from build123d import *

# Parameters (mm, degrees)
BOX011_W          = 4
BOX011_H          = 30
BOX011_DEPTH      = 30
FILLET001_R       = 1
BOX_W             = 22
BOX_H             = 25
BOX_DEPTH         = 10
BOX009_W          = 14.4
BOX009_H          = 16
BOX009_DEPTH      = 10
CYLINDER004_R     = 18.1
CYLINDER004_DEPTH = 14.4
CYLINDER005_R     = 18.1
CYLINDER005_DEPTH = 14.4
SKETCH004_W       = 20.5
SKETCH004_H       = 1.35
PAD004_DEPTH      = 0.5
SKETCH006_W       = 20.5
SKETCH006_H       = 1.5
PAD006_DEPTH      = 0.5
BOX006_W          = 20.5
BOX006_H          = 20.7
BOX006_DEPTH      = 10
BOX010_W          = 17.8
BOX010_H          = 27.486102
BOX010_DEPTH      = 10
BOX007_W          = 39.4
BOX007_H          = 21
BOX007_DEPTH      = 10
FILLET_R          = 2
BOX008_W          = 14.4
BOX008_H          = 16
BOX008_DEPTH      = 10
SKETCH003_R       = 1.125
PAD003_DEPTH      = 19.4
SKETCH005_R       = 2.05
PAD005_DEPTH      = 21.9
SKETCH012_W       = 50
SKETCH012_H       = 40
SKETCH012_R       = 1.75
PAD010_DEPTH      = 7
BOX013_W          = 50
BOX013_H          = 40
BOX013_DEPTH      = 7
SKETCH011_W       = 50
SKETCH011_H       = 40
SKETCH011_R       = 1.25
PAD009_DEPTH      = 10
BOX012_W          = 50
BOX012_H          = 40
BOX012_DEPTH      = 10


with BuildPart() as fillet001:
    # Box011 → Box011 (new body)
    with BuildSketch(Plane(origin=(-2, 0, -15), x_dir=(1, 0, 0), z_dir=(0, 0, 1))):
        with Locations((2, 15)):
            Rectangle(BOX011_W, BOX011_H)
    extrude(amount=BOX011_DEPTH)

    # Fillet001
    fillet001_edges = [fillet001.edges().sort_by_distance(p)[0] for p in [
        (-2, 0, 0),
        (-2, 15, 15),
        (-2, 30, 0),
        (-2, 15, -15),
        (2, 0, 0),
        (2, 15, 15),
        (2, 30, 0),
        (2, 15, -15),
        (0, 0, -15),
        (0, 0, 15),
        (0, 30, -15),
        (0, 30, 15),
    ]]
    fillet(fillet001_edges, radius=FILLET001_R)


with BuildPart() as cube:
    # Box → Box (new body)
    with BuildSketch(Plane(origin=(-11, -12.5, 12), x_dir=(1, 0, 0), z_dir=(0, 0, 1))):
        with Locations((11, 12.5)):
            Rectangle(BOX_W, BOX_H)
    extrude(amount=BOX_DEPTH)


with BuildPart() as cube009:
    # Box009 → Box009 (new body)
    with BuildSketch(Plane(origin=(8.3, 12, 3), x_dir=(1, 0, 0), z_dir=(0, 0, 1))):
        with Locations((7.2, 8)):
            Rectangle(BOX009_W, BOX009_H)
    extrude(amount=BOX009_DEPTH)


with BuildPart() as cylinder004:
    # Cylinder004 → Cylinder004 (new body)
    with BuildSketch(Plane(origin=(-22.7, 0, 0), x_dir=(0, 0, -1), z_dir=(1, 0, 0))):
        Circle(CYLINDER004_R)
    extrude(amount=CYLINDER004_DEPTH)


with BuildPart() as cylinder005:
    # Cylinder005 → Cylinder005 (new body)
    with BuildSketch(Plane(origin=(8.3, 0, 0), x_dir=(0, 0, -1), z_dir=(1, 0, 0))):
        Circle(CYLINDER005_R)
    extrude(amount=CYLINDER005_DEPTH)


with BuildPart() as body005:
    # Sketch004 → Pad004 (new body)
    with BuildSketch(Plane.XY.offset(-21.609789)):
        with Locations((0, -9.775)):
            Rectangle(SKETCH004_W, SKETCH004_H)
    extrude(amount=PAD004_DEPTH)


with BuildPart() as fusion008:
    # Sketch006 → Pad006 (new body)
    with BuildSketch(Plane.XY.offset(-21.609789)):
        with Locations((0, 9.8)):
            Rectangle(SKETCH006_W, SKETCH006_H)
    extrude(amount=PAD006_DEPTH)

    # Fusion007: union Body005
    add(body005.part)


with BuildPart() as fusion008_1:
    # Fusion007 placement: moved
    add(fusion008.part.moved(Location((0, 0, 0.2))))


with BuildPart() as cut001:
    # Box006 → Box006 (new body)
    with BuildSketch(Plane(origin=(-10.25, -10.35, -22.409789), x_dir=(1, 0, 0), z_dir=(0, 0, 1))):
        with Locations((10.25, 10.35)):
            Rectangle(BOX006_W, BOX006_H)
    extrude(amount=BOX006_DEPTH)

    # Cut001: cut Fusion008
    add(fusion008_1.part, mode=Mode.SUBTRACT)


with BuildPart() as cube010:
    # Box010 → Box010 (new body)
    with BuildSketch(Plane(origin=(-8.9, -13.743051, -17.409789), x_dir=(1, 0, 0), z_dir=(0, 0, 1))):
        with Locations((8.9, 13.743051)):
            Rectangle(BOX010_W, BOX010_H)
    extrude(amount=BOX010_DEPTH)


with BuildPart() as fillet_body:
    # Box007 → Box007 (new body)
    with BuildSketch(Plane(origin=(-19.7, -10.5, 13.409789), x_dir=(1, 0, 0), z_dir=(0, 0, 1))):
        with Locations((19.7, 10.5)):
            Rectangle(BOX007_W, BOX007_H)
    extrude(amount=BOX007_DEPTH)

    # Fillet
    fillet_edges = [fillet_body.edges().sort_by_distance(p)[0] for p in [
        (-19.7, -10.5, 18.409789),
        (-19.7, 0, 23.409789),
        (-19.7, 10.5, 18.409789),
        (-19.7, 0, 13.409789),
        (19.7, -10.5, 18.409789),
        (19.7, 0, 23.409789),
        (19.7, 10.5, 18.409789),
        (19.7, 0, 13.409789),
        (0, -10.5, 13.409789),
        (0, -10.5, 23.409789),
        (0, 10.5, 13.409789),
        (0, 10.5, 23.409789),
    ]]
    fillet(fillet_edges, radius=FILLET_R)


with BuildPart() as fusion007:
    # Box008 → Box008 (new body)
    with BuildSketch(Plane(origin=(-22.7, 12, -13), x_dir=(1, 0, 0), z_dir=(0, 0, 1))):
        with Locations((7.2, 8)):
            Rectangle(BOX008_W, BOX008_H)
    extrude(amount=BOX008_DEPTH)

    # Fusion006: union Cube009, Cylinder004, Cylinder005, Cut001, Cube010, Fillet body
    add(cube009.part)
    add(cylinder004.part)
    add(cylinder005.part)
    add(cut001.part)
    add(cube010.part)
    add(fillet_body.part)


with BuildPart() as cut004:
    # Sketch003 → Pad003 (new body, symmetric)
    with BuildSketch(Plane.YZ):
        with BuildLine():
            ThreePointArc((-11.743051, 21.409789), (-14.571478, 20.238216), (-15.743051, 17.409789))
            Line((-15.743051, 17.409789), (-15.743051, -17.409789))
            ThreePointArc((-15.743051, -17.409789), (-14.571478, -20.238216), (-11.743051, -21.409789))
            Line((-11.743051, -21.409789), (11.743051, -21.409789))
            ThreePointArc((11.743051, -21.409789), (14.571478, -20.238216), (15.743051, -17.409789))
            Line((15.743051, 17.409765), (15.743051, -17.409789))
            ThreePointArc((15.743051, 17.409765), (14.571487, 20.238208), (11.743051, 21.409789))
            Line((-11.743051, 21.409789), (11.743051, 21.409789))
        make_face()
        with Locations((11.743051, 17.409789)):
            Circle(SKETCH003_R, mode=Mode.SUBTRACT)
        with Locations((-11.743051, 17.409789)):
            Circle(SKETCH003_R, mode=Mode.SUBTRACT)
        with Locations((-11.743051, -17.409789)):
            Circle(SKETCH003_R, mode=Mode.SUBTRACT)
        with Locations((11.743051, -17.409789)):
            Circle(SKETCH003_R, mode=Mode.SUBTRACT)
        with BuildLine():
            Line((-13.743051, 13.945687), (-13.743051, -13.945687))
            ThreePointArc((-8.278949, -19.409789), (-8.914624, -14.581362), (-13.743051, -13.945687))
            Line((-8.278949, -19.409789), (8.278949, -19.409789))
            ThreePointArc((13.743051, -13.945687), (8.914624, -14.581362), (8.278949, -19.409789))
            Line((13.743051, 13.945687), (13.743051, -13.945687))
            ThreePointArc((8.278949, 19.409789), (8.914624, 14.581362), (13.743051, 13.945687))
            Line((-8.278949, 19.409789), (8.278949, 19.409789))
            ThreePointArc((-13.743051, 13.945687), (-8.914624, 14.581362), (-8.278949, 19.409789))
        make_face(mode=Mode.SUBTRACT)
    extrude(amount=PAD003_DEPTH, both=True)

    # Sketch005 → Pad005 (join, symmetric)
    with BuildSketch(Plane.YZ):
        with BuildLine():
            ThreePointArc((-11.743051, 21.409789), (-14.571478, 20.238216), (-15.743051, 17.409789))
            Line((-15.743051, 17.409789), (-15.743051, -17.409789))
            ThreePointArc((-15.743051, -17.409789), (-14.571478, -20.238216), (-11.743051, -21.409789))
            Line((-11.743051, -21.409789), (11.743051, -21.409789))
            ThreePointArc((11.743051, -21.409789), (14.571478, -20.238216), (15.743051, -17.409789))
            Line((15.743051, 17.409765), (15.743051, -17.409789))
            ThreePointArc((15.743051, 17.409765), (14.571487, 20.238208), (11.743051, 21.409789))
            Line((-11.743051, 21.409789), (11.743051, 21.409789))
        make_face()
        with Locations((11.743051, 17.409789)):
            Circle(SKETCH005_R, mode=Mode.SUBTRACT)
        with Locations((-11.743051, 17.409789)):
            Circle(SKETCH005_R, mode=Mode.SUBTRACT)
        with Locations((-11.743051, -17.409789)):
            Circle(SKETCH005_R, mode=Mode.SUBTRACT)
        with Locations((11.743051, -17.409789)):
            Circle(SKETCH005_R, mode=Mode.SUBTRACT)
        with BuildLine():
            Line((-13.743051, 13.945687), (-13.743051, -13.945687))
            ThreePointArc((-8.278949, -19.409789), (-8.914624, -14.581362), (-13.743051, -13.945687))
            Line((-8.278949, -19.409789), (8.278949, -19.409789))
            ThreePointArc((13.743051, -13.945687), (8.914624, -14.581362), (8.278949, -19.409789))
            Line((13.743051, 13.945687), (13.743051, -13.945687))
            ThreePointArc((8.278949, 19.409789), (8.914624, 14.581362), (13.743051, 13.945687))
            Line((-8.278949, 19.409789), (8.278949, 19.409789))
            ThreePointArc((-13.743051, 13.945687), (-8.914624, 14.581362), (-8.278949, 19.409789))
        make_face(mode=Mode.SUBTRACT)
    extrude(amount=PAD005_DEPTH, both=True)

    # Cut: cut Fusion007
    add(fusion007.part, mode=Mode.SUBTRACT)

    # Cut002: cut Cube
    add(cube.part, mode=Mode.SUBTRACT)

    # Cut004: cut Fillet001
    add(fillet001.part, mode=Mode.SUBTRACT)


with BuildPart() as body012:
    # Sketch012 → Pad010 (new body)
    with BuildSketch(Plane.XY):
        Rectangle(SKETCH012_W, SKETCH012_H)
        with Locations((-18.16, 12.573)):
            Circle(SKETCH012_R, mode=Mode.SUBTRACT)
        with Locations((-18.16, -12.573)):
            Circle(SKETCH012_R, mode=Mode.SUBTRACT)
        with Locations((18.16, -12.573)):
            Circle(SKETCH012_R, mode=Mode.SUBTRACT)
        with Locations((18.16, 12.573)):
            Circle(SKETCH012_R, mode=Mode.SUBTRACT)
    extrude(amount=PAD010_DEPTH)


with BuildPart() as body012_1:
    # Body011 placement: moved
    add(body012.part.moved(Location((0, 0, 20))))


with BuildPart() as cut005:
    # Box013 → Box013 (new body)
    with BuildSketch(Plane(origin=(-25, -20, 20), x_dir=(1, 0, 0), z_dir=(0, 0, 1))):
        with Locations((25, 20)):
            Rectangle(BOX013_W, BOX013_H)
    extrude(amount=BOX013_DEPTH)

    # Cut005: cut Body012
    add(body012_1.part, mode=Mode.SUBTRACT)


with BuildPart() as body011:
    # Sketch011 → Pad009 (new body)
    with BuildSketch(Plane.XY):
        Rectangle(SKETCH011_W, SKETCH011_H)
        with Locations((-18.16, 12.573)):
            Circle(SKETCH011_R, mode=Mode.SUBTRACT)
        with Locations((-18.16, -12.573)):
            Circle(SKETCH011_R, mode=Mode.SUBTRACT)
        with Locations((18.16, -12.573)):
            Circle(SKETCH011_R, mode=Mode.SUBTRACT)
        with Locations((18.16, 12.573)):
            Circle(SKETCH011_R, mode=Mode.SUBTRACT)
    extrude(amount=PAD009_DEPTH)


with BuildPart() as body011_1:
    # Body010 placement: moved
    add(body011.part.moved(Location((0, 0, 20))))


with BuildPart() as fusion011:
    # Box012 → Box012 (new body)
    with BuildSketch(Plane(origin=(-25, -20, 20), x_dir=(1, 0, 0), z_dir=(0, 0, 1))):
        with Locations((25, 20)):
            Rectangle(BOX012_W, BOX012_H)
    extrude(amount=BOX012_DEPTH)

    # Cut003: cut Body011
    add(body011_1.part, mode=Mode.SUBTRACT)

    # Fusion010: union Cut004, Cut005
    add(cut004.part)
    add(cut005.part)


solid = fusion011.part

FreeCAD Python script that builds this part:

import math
import FreeCAD as App
import Part
import Sketcher
from FreeCAD import Vector


def add_polygon(sketch, points):
    """Adds a closed chain of lines whose ends are joined by coincident constraints."""
    first, n = sketch.GeometryCount, len(points)
    for a, b in zip(points, points[1:] + points[:1]):
        sketch.addGeometry(Part.LineSegment(App.Vector(*a, 0), App.Vector(*b, 0)), False)
    for i in range(n):
        sketch.addConstraint(Sketcher.Constraint("Coincident", first + i, 2, first + (i + 1) % n, 1))

doc = App.newDocument("Part")
body = doc.addObject("PartDesign::Body", "Body")

sketch1 = doc.addObject("Sketcher::SketchObject", "Sketch")
body.addObject(sketch1)
sketch1.AttachmentSupport = (doc.XY_Plane, [""])
sketch1.MapMode = "FlatFace"
sketch1.AttachmentOffset = App.Placement(Vector(0, 0, -15), App.Rotation())
add_polygon(sketch1, [(-2, 30), (-2, 0), (2, 0), (2, 30)])
sketch1.addConstraint(Sketcher.Constraint("Vertical", 0))
sketch1.addConstraint(Sketcher.Constraint("Horizontal", 1))
sketch1.addConstraint(Sketcher.Constraint("Vertical", 2))
sketch1.addConstraint(Sketcher.Constraint("Horizontal", 3))
sketch1.addConstraint(Sketcher.Constraint("Symmetric", 0, 2, 1, 2, -1, 1))
sketch1.addConstraint(Sketcher.Constraint("DistanceX", 1, 1, 1, 2, 4.0))
sketch1.addConstraint(Sketcher.Constraint("DistanceY", 0, 2, 0, 1, 30.0))
pad1 = doc.addObject("PartDesign::Pad", "Pad")
body.addObject(pad1)
pad1.Profile = sketch1
pad1.Length = 30
doc.recompute()

fillet = doc.addObject("PartDesign::Fillet", "Fillet")
body.addObject(fillet)
fillet.Base = (pad1, ["Edge1"])
fillet.UseAllEdges = True
fillet.Radius = 1
body2 = doc.addObject("PartDesign::Body", "Body001")

sketch2 = doc.addObject("Sketcher::SketchObject", "Sketch001")
body2.addObject(sketch2)
sketch2.AttachmentSupport = (doc.getObject("XY_Plane001"), [""])
sketch2.MapMode = "FlatFace"
sketch2.AttachmentOffset = App.Placement(Vector(0, 0, 12), App.Rotation())
add_polygon(sketch2, [(-11, 12), (-11, -12), (11, -12), (11, 12)])
sketch2.addConstraint(Sketcher.Constraint("Vertical", 0))
sketch2.addConstraint(Sketcher.Constraint("Horizontal", 1))
sketch2.addConstraint(Sketcher.Constraint("Vertical", 2))
sketch2.addConstraint(Sketcher.Constraint("Horizontal", 3))
sketch2.addConstraint(Sketcher.Constraint("Symmetric", 0, 2, 2, 2, -1, 1))
sketch2.addConstraint(Sketcher.Constraint("DistanceX", 1, 1, 1, 2, 22.0))
sketch2.addConstraint(Sketcher.Constraint("DistanceY", 0, 2, 0, 1, 25.0))
pad2 = doc.addObject("PartDesign::Pad", "Pad001")
body2.addObject(pad2)
pad2.Profile = sketch2
pad2.Length = 10
body3 = doc.addObject("PartDesign::Body", "Body002")

sketch3 = doc.addObject("Sketcher::SketchObject", "Sketch002")
body3.addObject(sketch3)
sketch3.AttachmentSupport = (doc.getObject("XY_Plane002"), [""])
sketch3.MapMode = "FlatFace"
sketch3.AttachmentOffset = App.Placement(Vector(0, 0, 3), App.Rotation())
add_polygon(sketch3, [(8, 28), (8, 12), (23, 12), (23, 28)])
sketch3.addConstraint(Sketcher.Constraint("Vertical", 0))
sketch3.addConstraint(Sketcher.Constraint("Horizontal", 1))
sketch3.addConstraint(Sketcher.Constraint("Vertical", 2))
sketch3.addConstraint(Sketcher.Constraint("Horizontal", 3))
sketch3.addConstraint(Sketcher.Constraint("DistanceY", 0, 2, 0, 1, 16.0))
sketch3.addConstraint(Sketcher.Constraint("DistanceX", 1, 1, 1, 2, 14.4))
sketch3.addConstraint(Sketcher.Constraint("DistanceY", -1, 1, 0, 2, 12.0))
sketch3.addConstraint(Sketcher.Constraint("DistanceX", -1, 1, 0, 2, 8.3))
pad3 = doc.addObject("PartDesign::Pad", "Pad002")
body3.addObject(pad3)
pad3.Profile = sketch3
pad3.Length = 10
body4 = doc.addObject("PartDesign::Body", "Body003")

sketch4 = doc.addObject("Sketcher::SketchObject", "Sketch003")
body4.addObject(sketch4)
sketch4.AttachmentSupport = (doc.getObject("YZ_Plane003"), [""])
sketch4.MapMode = "FlatFace"
sketch4.AttachmentOffset = App.Placement(Vector(0, 0, -22.7), App.Rotation())
sketch4.addGeometry(Part.Circle(Vector(0, 0, 0), Vector(0, 0, 1), 18), False)
sketch4.addConstraint(Sketcher.Constraint("Coincident", 0, 3, -1, 1))
sketch4.addConstraint(Sketcher.Constraint("Diameter", 0, 36.2))
pad4 = doc.addObject("PartDesign::Pad", "Pad003")
body4.addObject(pad4)
pad4.Profile = sketch4
pad4.Length = 14.4
body5 = doc.addObject("PartDesign::Body", "Body004")

sketch5 = doc.addObject("Sketcher::SketchObject", "Sketch004")
body5.addObject(sketch5)
sketch5.AttachmentSupport = (doc.getObject("YZ_Plane004"), [""])
sketch5.MapMode = "FlatFace"
sketch5.AttachmentOffset = App.Placement(Vector(0, 0, 8.3), App.Rotation())
sketch5.addGeometry(Part.Circle(Vector(0, 0, 0), Vector(0, 0, 1), 18), False)
sketch5.addConstraint(Sketcher.Constraint("Coincident", 0, 3, -1, 1))
sketch5.addConstraint(Sketcher.Constraint("Diameter", 0, 36.2))
pad5 = doc.addObject("PartDesign::Pad", "Pad004")
body5.addObject(pad5)
pad5.Profile = sketch5
pad5.Length = 14.4
body6 = doc.addObject("PartDesign::Body", "Body005")

sketch6 = doc.addObject("Sketcher::SketchObject", "Sketch005")
body6.addObject(sketch6)
sketch6.AttachmentSupport = (doc.getObject("XY_Plane005"), [""])
sketch6.MapMode = "FlatFace"
sketch6.AttachmentOffset = App.Placement(Vector(0, 0, -21.609789), App.Rotation())
add_polygon(sketch6, [(-10.2, -9.1), (-10.2, -10.4), (10.2, -10.4), (10.2, -9.1)])
sketch6.addConstraint(Sketcher.Constraint("Vertical", 0))
sketch6.addConstraint(Sketcher.Constraint("Horizontal", 1))
sketch6.addConstraint(Sketcher.Constraint("Vertical", 2))
sketch6.addConstraint(Sketcher.Constraint("Horizontal", 3))
sketch6.addConstraint(Sketcher.Constraint("DistanceX", 1, 1, 1, 2, 20.5))
sketch6.addConstraint(Sketcher.Constraint("DistanceY", 0, 2, 0, 1, 1.35))
sketch6.addConstraint(Sketcher.Constraint("DistanceY", 2, 2, -1, 1, 9.1))
sketch6.addConstraint(Sketcher.Constraint("DistanceX", 0, 2, -1, 1, 10.25))
pad6 = doc.addObject("PartDesign::Pad", "Pad005")
body6.addObject(pad6)
pad6.Profile = sketch6
pad6.Length = 0.5
body7 = doc.addObject("PartDesign::Body", "Body006")
body7.AllowCompound = True

sketch7 = doc.addObject("Sketcher::SketchObject", "Sketch006")
body7.addObject(sketch7)
sketch7.AttachmentSupport = (doc.getObject("XY_Plane006"), [""])
sketch7.MapMode = "FlatFace"
sketch7.AttachmentOffset = App.Placement(Vector(0, 0, -21.609789), App.Rotation())
add_polygon(sketch7, [(-10.2, 10.6), (-10.2, 9.1), (10.2, 9.1), (10.2, 10.6)])
sketch7.addConstraint(Sketcher.Constraint("Vertical", 0))
sketch7.addConstraint(Sketcher.Constraint("Horizontal", 1))
sketch7.addConstraint(Sketcher.Constraint("Vertical", 2))
sketch7.addConstraint(Sketcher.Constraint("Horizontal", 3))
sketch7.addConstraint(Sketcher.Constraint("DistanceX", 1, 1, 1, 2, 20.5))
sketch7.addConstraint(Sketcher.Constraint("DistanceY", 0, 2, 0, 1, 1.5))
sketch7.addConstraint(Sketcher.Constraint("DistanceX", 0, 2, -1, 1, 10.25))
sketch7.addConstraint(Sketcher.Constraint("DistanceY", -1, 1, 0, 2, 9.05))
pad7 = doc.addObject("PartDesign::Pad", "Pad006")
body7.addObject(pad7)
pad7.Profile = sketch7
pad7.Length = 0.5
doc.recompute()

boolean = doc.addObject("PartDesign::Boolean", "Boolean")
body7.addObject(boolean)
boolean.Type = "Fuse"
boolean.addObjects([body6])
body8 = doc.addObject("PartDesign::Body", "Body007")
body8.AllowCompound = True
doc.recompute()

body7.Placement = App.Placement(Vector(0, 0, 0.2), App.Rotation(Vector(0, 0, 1), 0))
boolean2 = doc.addObject("PartDesign::Boolean", "Boolean001")
body8.addObject(boolean2)
boolean2.Type = "Fuse"
boolean2.addObjects([body7])
body9 = doc.addObject("PartDesign::Body", "Body008")

sketch8 = doc.addObject("Sketcher::SketchObject", "Sketch007")
body9.addObject(sketch8)
sketch8.AttachmentSupport = (doc.getObject("XY_Plane008"), [""])
sketch8.MapMode = "FlatFace"
sketch8.AttachmentOffset = App.Placement(Vector(0, 0, -22.409789), App.Rotation())
add_polygon(sketch8, [(-10, 10), (-10, -10), (10, -10), (10, 10)])
sketch8.addConstraint(Sketcher.Constraint("Vertical", 0))
sketch8.addConstraint(Sketcher.Constraint("Horizontal", 1))
sketch8.addConstraint(Sketcher.Constraint("Vertical", 2))
sketch8.addConstraint(Sketcher.Constraint("Horizontal", 3))
sketch8.addConstraint(Sketcher.Constraint("Symmetric", 0, 2, 2, 2, -1, 1))
sketch8.addConstraint(Sketcher.Constraint("DistanceX", 1, 1, 1, 2, 20.5))
sketch8.addConstraint(Sketcher.Constraint("DistanceY", 0, 2, 0, 1, 20.7))
pad8 = doc.addObject("PartDesign::Pad", "Pad007")
body9.addObject(pad8)
pad8.Profile = sketch8
pad8.Length = 10
doc.recompute()

boolean3 = doc.addObject("PartDesign::Boolean", "Boolean002")
body9.addObject(boolean3)
boolean3.Type = "Cut"
boolean3.addObjects([body8])
body10 = doc.addObject("PartDesign::Body", "Body009")

sketch9 = doc.addObject("Sketcher::SketchObject", "Sketch008")
body10.addObject(sketch9)
sketch9.AttachmentSupport = (doc.getObject("XY_Plane009"), [""])
sketch9.MapMode = "FlatFace"
sketch9.AttachmentOffset = App.Placement(Vector(0, 0, -17.409789), App.Rotation())
add_polygon(sketch9, [(-9, 14), (-9, -14), (9, -14), (9, 14)])
sketch9.addConstraint(Sketcher.Constraint("Vertical", 0))
sketch9.addConstraint(Sketcher.Constraint("Horizontal", 1))
sketch9.addConstraint(Sketcher.Constraint("Vertical", 2))
sketch9.addConstraint(Sketcher.Constraint("Horizontal", 3))
sketch9.addConstraint(Sketcher.Constraint("Symmetric", 0, 2, 2, 2, -1, 1))
sketch9.addConstraint(Sketcher.Constraint("DistanceX", 1, 1, 1, 2, 17.8))
sketch9.addConstraint(Sketcher.Constraint("DistanceY", 0, 2, 0, 1, 27.486102))
pad9 = doc.addObject("PartDesign::Pad", "Pad008")
body10.addObject(pad9)
pad9.Profile = sketch9
pad9.Length = 10
body11 = doc.addObject("PartDesign::Body", "Body010")

sketch10 = doc.addObject("Sketcher::SketchObject", "Sketch009")
body11.addObject(sketch10)
sketch10.AttachmentSupport = (doc.getObject("XY_Plane010"), [""])
sketch10.MapMode = "FlatFace"
sketch10.AttachmentOffset = App.Placement(Vector(0, 0, 13.409789), App.Rotation())
add_polygon(sketch10, [(-20, 10), (-20, -10), (20, -10), (20, 10)])
sketch10.addConstraint(Sketcher.Constraint("Vertical", 0))
sketch10.addConstraint(Sketcher.Constraint("Horizontal", 1))
sketch10.addConstraint(Sketcher.Constraint("Vertical", 2))
sketch10.addConstraint(Sketcher.Constraint("Horizontal", 3))
sketch10.addConstraint(Sketcher.Constraint("Symmetric", 0, 2, 2, 2, -1, 1))
sketch10.addConstraint(Sketcher.Constraint("DistanceY", 0, 2, 0, 1, 21.0))
sketch10.addConstraint(Sketcher.Constraint("DistanceX", 1, 1, 1, 2, 39.4))
pad10 = doc.addObject("PartDesign::Pad", "Pad009")
body11.addObject(pad10)
pad10.Profile = sketch10
pad10.Length = 10
doc.recompute()

fillet2 = doc.addObject("PartDesign::Fillet", "Fillet001")
body11.addObject(fillet2)
fillet2.Base = (pad10, ["Edge1"])
fillet2.UseAllEdges = True
fillet2.Radius = 2
body12 = doc.addObject("PartDesign::Body", "Body011")
body12.AllowCompound = True

sketch11 = doc.addObject("Sketcher::SketchObject", "Sketch010")
body12.addObject(sketch11)
sketch11.AttachmentSupport = (doc.getObject("XY_Plane011"), [""])
sketch11.MapMode = "FlatFace"
sketch11.AttachmentOffset = App.Placement(Vector(0, 0, -13), App.Rotation())
add_polygon(sketch11, [(-23, 28), (-23, 12), (-8, 12), (-8, 28)])
sketch11.addConstraint(Sketcher.Constraint("Vertical", 0))
sketch11.addConstraint(Sketcher.Constraint("Horizontal", 1))
sketch11.addConstraint(Sketcher.Constraint("Vertical", 2))
sketch11.addConstraint(Sketcher.Constraint("Horizontal", 3))
sketch11.addConstraint(Sketcher.Constraint("DistanceY", 0, 2, 0, 1, 16.0))
sketch11.addConstraint(Sketcher.Constraint("DistanceX", 1, 1, 1, 2, 14.4))
sketch11.addConstraint(Sketcher.Constraint("DistanceY", -1, 1, 0, 2, 12.0))
sketch11.addConstraint(Sketcher.Constraint("DistanceX", 0, 2, -1, 1, 22.7))
pad11 = doc.addObject("PartDesign::Pad", "Pad010")
body12.addObject(pad11)
pad11.Profile = sketch11
pad11.Length = 10
doc.recompute()

boolean4 = doc.addObject("PartDesign::Boolean", "Boolean003")
body12.addObject(boolean4)
boolean4.Type = "Fuse"
boolean4.addObjects([body3])
doc.recompute()

boolean5 = doc.addObject("PartDesign::Boolean", "Boolean004")
body12.addObject(boolean5)
boolean5.Type = "Fuse"
boolean5.addObjects([body4])
doc.recompute()

boolean6 = doc.addObject("PartDesign::Boolean", "Boolean005")
body12.addObject(boolean6)
boolean6.Type = "Fuse"
boolean6.addObjects([body5])
doc.recompute()

boolean7 = doc.addObject("PartDesign::Boolean", "Boolean006")
body12.addObject(boolean7)
boolean7.Type = "Fuse"
boolean7.addObjects([body9])
doc.recompute()

boolean8 = doc.addObject("PartDesign::Boolean", "Boolean007")
body12.addObject(boolean8)
boolean8.Type = "Fuse"
boolean8.addObjects([body10])
doc.recompute()

boolean9 = doc.addObject("PartDesign::Boolean", "Boolean008")
body12.addObject(boolean9)
boolean9.Type = "Fuse"
boolean9.addObjects([body11])
body13 = doc.addObject("PartDesign::Body", "Body012")

sketch12 = doc.addObject("Sketcher::SketchObject", "Sketch011")
body13.addObject(sketch12)
sketch12.AttachmentSupport = (doc.getObject("YZ_Plane012"), [""])
sketch12.MapMode = "FlatFace"
sketch12.addGeometry(Part.ArcOfCircle(Part.Circle(Vector(-11.7, 17.4, 0), Vector(0, 0, 1), 4), math.radians(90), math.radians(180)), False)
sketch12.addGeometry(Part.LineSegment(Vector(-15.7, 17.4, 0), Vector(-15.7, -17.4, 0)), False)
sketch12.addGeometry(Part.ArcOfCircle(Part.Circle(Vector(-11.7, -17.4, 0), Vector(0, 0, 1), 4), math.radians(-180), math.radians(-90)), False)
sketch12.addGeometry(Part.LineSegment(Vector(-11.7, -21.4, 0), Vector(11.7, -21.4, 0)), False)
sketch12.addGeometry(Part.ArcOfCircle(Part.Circle(Vector(11.7, -17.4, 0), Vector(0, 0, 1), 4), math.radians(-90), math.radians(0)), False)
sketch12.addGeometry(Part.LineSegment(Vector(15.7, -17.4, 0), Vector(15.7, 17.4, 0)), False)
sketch12.addGeometry(Part.ArcOfCircle(Part.Circle(Vector(11.7, 17.4, 0), Vector(0, 0, 1), 4), math.radians(0), math.radians(90)), False)
sketch12.addGeometry(Part.LineSegment(Vector(11.7, 21.4, 0), Vector(-11.7, 21.4, 0)), False)
sketch12.addGeometry(Part.Circle(Vector(-11.7, -17.4, 0), Vector(0, 0, 1), 1.1), False)
sketch12.addGeometry(Part.Circle(Vector(11.7, -17.4, 0), Vector(0, 0, 1), 1.1), False)
sketch12.addGeometry(Part.Circle(Vector(-11.7, 17.4, 0), Vector(0, 0, 1), 1.1), False)
sketch12.addGeometry(Part.LineSegment(Vector(-13.7, -13.9, 0), Vector(-13.7, 13.9, 0)), False)
sketch12.addGeometry(Part.ArcOfCircle(Part.Circle(Vector(-11.7, 17.4, 0), Vector(0, 0, 1), 4), math.radians(-120), math.radians(30)), False)
sketch12.addGeometry(Part.LineSegment(Vector(-8.3, 19.4, 0), Vector(8.3, 19.4, 0)), False)
sketch12.addGeometry(Part.ArcOfCircle(Part.Circle(Vector(11.7, 17.4, 0), Vector(0, 0, 1), 4), math.radians(150), math.radians(300)), False)
sketch12.addGeometry(Part.LineSegment(Vector(13.7, 13.9, 0), Vector(13.7, -13.9, 0)), False)
sketch12.addGeometry(Part.ArcOfCircle(Part.Circle(Vector(11.7, -17.4, 0), Vector(0, 0, 1), 4), math.radians(60), math.radians(210)), False)
sketch12.addGeometry(Part.LineSegment(Vector(8.3, -19.4, 0), Vector(-8.3, -19.4, 0)), False)
sketch12.addGeometry(Part.ArcOfCircle(Part.Circle(Vector(-11.7, -17.4, 0), Vector(0, 0, 1), 4), math.radians(-30), math.radians(120)), False)
sketch12.addGeometry(Part.Circle(Vector(11.7, 17.4, 0), Vector(0, 0, 1), 1.1), False)
sketch12.addConstraint(Sketcher.Constraint("Tangent", 0, 2, 1, 1))
sketch12.addConstraint(Sketcher.Constraint("Tangent", 1, 2, 2, 1))
sketch12.addConstraint(Sketcher.Constraint("Tangent", 2, 2, 3, 1))
sketch12.addConstraint(Sketcher.Constraint("Tangent", 3, 2, 4, 1))
sketch12.addConstraint(Sketcher.Constraint("Tangent", 4, 2, 5, 1))
sketch12.addConstraint(Sketcher.Constraint("Coincident", 5, 2, 6, 1))
sketch12.addConstraint(Sketcher.Constraint("Tangent", 6, 2, 7, 1))
sketch12.addConstraint(Sketcher.Constraint("Tangent", 7, 2, 0, 1))
sketch12.addConstraint(Sketcher.Constraint("Coincident", 11, 2, 12, 1))
sketch12.addConstraint(Sketcher.Constraint("Coincident", 12, 2, 13, 1))
sketch12.addConstraint(Sketcher.Constraint("Coincident", 13, 2, 14, 1))
sketch12.addConstraint(Sketcher.Constraint("Coincident", 14, 2, 15, 1))
sketch12.addConstraint(Sketcher.Constraint("Coincident", 15, 2, 16, 1))
sketch12.addConstraint(Sketcher.Constraint("Coincident", 16, 2, 17, 1))
sketch12.addConstraint(Sketcher.Constraint("Coincident", 17, 2, 18, 1))
sketch12.addConstraint(Sketcher.Constraint("Coincident", 18, 2, 11, 1))
sketch12.addConstraint(Sketcher.Constraint("Vertical", 1))
sketch12.addConstraint(Sketcher.Constraint("Horizontal", 3))
sketch12.addConstraint(Sketcher.Constraint("Vertical", 5))
sketch12.addConstraint(Sketcher.Constraint("Horizontal", 7))
sketch12.addConstraint(Sketcher.Constraint("Vertical", 11))
sketch12.addConstraint(Sketcher.Constraint("Horizontal", 13))
sketch12.addConstraint(Sketcher.Constraint("Vertical", 15))
sketch12.addConstraint(Sketcher.Constraint("Horizontal", 17))
sketch12.addConstraint(Sketcher.Constraint("Coincident", 8, 3, 2, 3))
sketch12.addConstraint(Sketcher.Constraint("Coincident", 9, 3, 4, 3))
sketch12.addConstraint(Sketcher.Constraint("Coincident", 10, 3, 0, 3))
sketch12.addConstraint(Sketcher.Constraint("Coincident", 12, 3, 0, 3))
sketch12.addConstraint(Sketcher.Constraint("Coincident", 14, 3, 6, 3))
sketch12.addConstraint(Sketcher.Constraint("Coincident", 16, 3, 4, 3))
sketch12.addConstraint(Sketcher.Constraint("Coincident", 18, 3, 2, 3))
sketch12.addConstraint(Sketcher.Constraint("Coincident", 19, 3, 6, 3))
sketch12.addConstraint(Sketcher.Constraint("Equal", 0, 2))
sketch12.addConstraint(Sketcher.Constraint("Equal", 2, 4))
sketch12.addConstraint(Sketcher.Constraint("Equal", 4, 6))
sketch12.addConstraint(Sketcher.Constraint("Equal", 8, 9))
sketch12.addConstraint(Sketcher.Constraint("Equal", 9, 10))
sketch12.addConstraint(Sketcher.Constraint("Equal", 6, 12))
sketch12.addConstraint(Sketcher.Constraint("Equal", 12, 14))
sketch12.addConstraint(Sketcher.Constraint("Equal", 14, 16))
sketch12.addConstraint(Sketcher.Constraint("Equal", 16, 18))
sketch12.addConstraint(Sketcher.Constraint("Equal", 10, 19))
sketch12.addConstraint(Sketcher.Constraint("Symmetric", 0, 3, 4, 3, -1, 1))
sketch12.addConstraint(Sketcher.Constraint("Horizontal", 11, 2, 14, 2))
sketch12.addConstraint(Sketcher.Constraint("Vertical", 13, 2, 16, 2))
sketch12.addConstraint(Sketcher.Constraint("Radius", 0, 4.0))
sketch12.addConstraint(Sketcher.Constraint("Diameter", 8, 2.25))
sketch12.addConstraint(Sketcher.Constraint("DistanceX", 11, 2, 0, 3, 2.0))
sketch12.addConstraint(Sketcher.Constraint("DistanceY", 0, 3, 12, 2, 2.0))
sketch12.addConstraint(Sketcher.Constraint("DistanceX", 3, 1, 3, 2, 23.486102))
sketch12.addConstraint(Sketcher.Constraint("DistanceY", 1, 2, 1, 1, 34.819578))
sketch12.addConstraint(Sketcher.Constraint("DistanceY", 5, 1, 5, 2, 34.819554))
pad12 = doc.addObject("PartDesign::Pad", "Pad011")
body13.addObject(pad12)
pad12.Profile = sketch12
pad12.Length = 38.8
pad12.Midplane = True

sketch13 = doc.addObject("Sketcher::SketchObject", "Sketch012")
body13.addObject(sketch13)
sketch13.AttachmentSupport = (doc.getObject("YZ_Plane012"), [""])
sketch13.MapMode = "FlatFace"
sketch13.addGeometry(Part.ArcOfCircle(Part.Circle(Vector(-11.7, 17.4, 0), Vector(0, 0, 1), 4), math.radians(90), math.radians(180)), False)
sketch13.addGeometry(Part.LineSegment(Vector(-15.7, 17.4, 0), Vector(-15.7, -17.4, 0)), False)
sketch13.addGeometry(Part.ArcOfCircle(Part.Circle(Vector(-11.7, -17.4, 0), Vector(0, 0, 1), 4), math.radians(-180), math.radians(-90)), False)
sketch13.addGeometry(Part.LineSegment(Vector(-11.7, -21.4, 0), Vector(11.7, -21.4, 0)), False)
sketch13.addGeometry(Part.ArcOfCircle(Part.Circle(Vector(11.7, -17.4, 0), Vector(0, 0, 1), 4), math.radians(-90), math.radians(0)), False)
sketch13.addGeometry(Part.LineSegment(Vector(15.7, -17.4, 0), Vector(15.7, 17.4, 0)), False)
sketch13.addGeometry(Part.ArcOfCircle(Part.Circle(Vector(11.7, 17.4, 0), Vector(0, 0, 1), 4), math.radians(0), math.radians(90)), False)
sketch13.addGeometry(Part.LineSegment(Vector(11.7, 21.4, 0), Vector(-11.7, 21.4, 0)), False)
sketch13.addGeometry(Part.Circle(Vector(-11.7, -17.4, 0), Vector(0, 0, 1), 2), False)
sketch13.addGeometry(Part.Circle(Vector(11.7, -17.4, 0), Vector(0, 0, 1), 2), False)
sketch13.addGeometry(Part.Circle(Vector(-11.7, 17.4, 0), Vector(0, 0, 1), 2), False)
sketch13.addGeometry(Part.LineSegment(Vector(-13.7, -13.9, 0), Vector(-13.7, 13.9, 0)), False)
sketch13.addGeometry(Part.ArcOfCircle(Part.Circle(Vector(-11.7, 17.4, 0), Vector(0, 0, 1), 4), math.radians(-120), math.radians(30)), False)
sketch13.addGeometry(Part.LineSegment(Vector(-8.3, 19.4, 0), Vector(8.3, 19.4, 0)), False)
sketch13.addGeometry(Part.ArcOfCircle(Part.Circle(Vector(11.7, 17.4, 0), Vector(0, 0, 1), 4), math.radians(150), math.radians(300)), False)
sketch13.addGeometry(Part.LineSegment(Vector(13.7, 13.9, 0), Vector(13.7, -13.9, 0)), False)
sketch13.addGeometry(Part.ArcOfCircle(Part.Circle(Vector(11.7, -17.4, 0), Vector(0, 0, 1), 4), math.radians(60), math.radians(210)), False)
sketch13.addGeometry(Part.LineSegment(Vector(8.3, -19.4, 0), Vector(-8.3, -19.4, 0)), False)
sketch13.addGeometry(Part.ArcOfCircle(Part.Circle(Vector(-11.7, -17.4, 0), Vector(0, 0, 1), 4), math.radians(-30), math.radians(120)), False)
sketch13.addGeometry(Part.Circle(Vector(11.7, 17.4, 0), Vector(0, 0, 1), 2), False)
sketch13.addConstraint(Sketcher.Constraint("Tangent", 0, 2, 1, 1))
sketch13.addConstraint(Sketcher.Constraint("Tangent", 1, 2, 2, 1))
sketch13.addConstraint(Sketcher.Constraint("Tangent", 2, 2, 3, 1))
sketch13.addConstraint(Sketcher.Constraint("Tangent", 3, 2, 4, 1))
sketch13.addConstraint(Sketcher.Constraint("Tangent", 4, 2, 5, 1))
sketch13.addConstraint(Sketcher.Constraint("Coincident", 5, 2, 6, 1))
sketch13.addConstraint(Sketcher.Constraint("Tangent", 6, 2, 7, 1))
sketch13.addConstraint(Sketcher.Constraint("Tangent", 7, 2, 0, 1))
sketch13.addConstraint(Sketcher.Constraint("Coincident", 11, 2, 12, 1))
sketch13.addConstraint(Sketcher.Constraint("Coincident", 12, 2, 13, 1))
sketch13.addConstraint(Sketcher.Constraint("Coincident", 13, 2, 14, 1))
sketch13.addConstraint(Sketcher.Constraint("Coincident", 14, 2, 15, 1))
sketch13.addConstraint(Sketcher.Constraint("Coincident", 15, 2, 16, 1))
sketch13.addConstraint(Sketcher.Constraint("Coincident", 16, 2, 17, 1))
sketch13.addConstraint(Sketcher.Constraint("Coincident", 17, 2, 18, 1))
sketch13.addConstraint(Sketcher.Constraint("Coincident", 18, 2, 11, 1))
sketch13.addConstraint(Sketcher.Constraint("Vertical", 1))
sketch13.addConstraint(Sketcher.Constraint("Horizontal", 3))
sketch13.addConstraint(Sketcher.Constraint("Vertical", 5))
sketch13.addConstraint(Sketcher.Constraint("Horizontal", 7))
sketch13.addConstraint(Sketcher.Constraint("Vertical", 11))
sketch13.addConstraint(Sketcher.Constraint("Horizontal", 13))
sketch13.addConstraint(Sketcher.Constraint("Vertical", 15))
sketch13.addConstraint(Sketcher.Constraint("Horizontal", 17))
sketch13.addConstraint(Sketcher.Constraint("Coincident", 8, 3, 2, 3))
sketch13.addConstraint(Sketcher.Constraint("Coincident", 9, 3, 4, 3))
sketch13.addConstraint(Sketcher.Constraint("Coincident", 10, 3, 0, 3))
sketch13.addConstraint(Sketcher.Constraint("Coincident", 12, 3, 0, 3))
sketch13.addConstraint(Sketcher.Constraint("Coincident", 14, 3, 6, 3))
sketch13.addConstraint(Sketcher.Constraint("Coincident", 16, 3, 4, 3))
sketch13.addConstraint(Sketcher.Constraint("Coincident", 18, 3, 2, 3))
sketch13.addConstraint(Sketcher.Constraint("Coincident", 19, 3, 6, 3))
sketch13.addConstraint(Sketcher.Constraint("Equal", 0, 2))
sketch13.addConstraint(Sketcher.Constraint("Equal", 2, 4))
sketch13.addConstraint(Sketcher.Constraint("Equal", 4, 6))
sketch13.addConstraint(Sketcher.Constraint("Equal", 8, 9))
sketch13.addConstraint(Sketcher.Constraint("Equal", 9, 10))
sketch13.addConstraint(Sketcher.Constraint("Equal", 6, 12))
sketch13.addConstraint(Sketcher.Constraint("Equal", 12, 14))
sketch13.addConstraint(Sketcher.Constraint("Equal", 14, 16))
sketch13.addConstraint(Sketcher.Constraint("Equal", 16, 18))
sketch13.addConstraint(Sketcher.Constraint("Equal", 10, 19))
sketch13.addConstraint(Sketcher.Constraint("Symmetric", 0, 3, 4, 3, -1, 1))
sketch13.addConstraint(Sketcher.Constraint("Horizontal", 11, 2, 14, 2))
sketch13.addConstraint(Sketcher.Constraint("Vertical", 13, 2, 16, 2))
sketch13.addConstraint(Sketcher.Constraint("Radius", 0, 4.0))
sketch13.addConstraint(Sketcher.Constraint("Diameter", 8, 4.1))
sketch13.addConstraint(Sketcher.Constraint("DistanceX", 11, 2, 0, 3, 2.0))
sketch13.addConstraint(Sketcher.Constraint("DistanceY", 0, 3, 12, 2, 2.0))
sketch13.addConstraint(Sketcher.Constraint("DistanceX", 3, 1, 3, 2, 23.486102))
sketch13.addConstraint(Sketcher.Constraint("DistanceY", 1, 2, 1, 1, 34.819578))
sketch13.addConstraint(Sketcher.Constraint("DistanceY", 5, 1, 5, 2, 34.819554))
pad13 = doc.addObject("PartDesign::Pad", "Pad012")
body13.addObject(pad13)
pad13.Profile = sketch13
pad13.Length = 43.8
pad13.Midplane = True
doc.recompute()

boolean10 = doc.addObject("PartDesign::Boolean", "Boolean009")
body13.addObject(boolean10)
boolean10.Type = "Cut"
boolean10.addObjects([body12])
doc.recompute()

boolean11 = doc.addObject("PartDesign::Boolean", "Boolean010")
body13.addObject(boolean11)
boolean11.Type = "Cut"
boolean11.addObjects([body2])
doc.recompute()

boolean12 = doc.addObject("PartDesign::Boolean", "Boolean011")
body13.addObject(boolean12)
boolean12.Type = "Cut"
boolean12.addObjects([body])
body14 = doc.addObject("PartDesign::Body", "Body013")

sketch14 = doc.addObject("Sketcher::SketchObject", "Sketch013")
body14.addObject(sketch14)
sketch14.AttachmentSupport = (doc.getObject("XY_Plane013"), [""])
sketch14.MapMode = "FlatFace"
add_polygon(sketch14, [(-25, 20), (-25, -20), (25, -20), (25, 20)])
sketch14.addGeometry(Part.Circle(Vector(-18.2, -12.6, 0), Vector(0, 0, 1), 1.8), False)
sketch14.addGeometry(Part.Circle(Vector(18.2, -12.6, 0), Vector(0, 0, 1), 1.8), False)
sketch14.addGeometry(Part.Circle(Vector(-18.2, 12.6, 0), Vector(0, 0, 1), 1.8), False)
sketch14.addGeometry(Part.Circle(Vector(18.2, 12.6, 0), Vector(0, 0, 1), 1.8), False)
sketch14.addConstraint(Sketcher.Constraint("Vertical", 0))
sketch14.addConstraint(Sketcher.Constraint("Horizontal", 1))
sketch14.addConstraint(Sketcher.Constraint("Vertical", 2))
sketch14.addConstraint(Sketcher.Constraint("Horizontal", 3))
sketch14.addConstraint(Sketcher.Constraint("Equal", 4, 5))
sketch14.addConstraint(Sketcher.Constraint("Equal", 5, 6))
sketch14.addConstraint(Sketcher.Constraint("Equal", 6, 7))
sketch14.addConstraint(Sketcher.Constraint("Symmetric", 5, 3, 6, 3, -1, 1))
sketch14.addConstraint(Sketcher.Constraint("Symmetric", 4, 3, 7, 3, -1, 1))
sketch14.addConstraint(Sketcher.Constraint("Symmetric", 0, 2, 2, 2, -1, 1))
sketch14.addConstraint(Sketcher.Constraint("Symmetric", 4, 3, 5, 3, -2))
sketch14.addConstraint(Sketcher.Constraint("Diameter", 4, 3.5))
sketch14.addConstraint(Sketcher.Constraint("DistanceX", 1, 1, 1, 2, 50.0))
sketch14.addConstraint(Sketcher.Constraint("DistanceY", 0, 2, 0, 1, 40.0))
sketch14.addConstraint(Sketcher.Constraint("DistanceX", 4, 3, -1, 1, 18.16))
sketch14.addConstraint(Sketcher.Constraint("DistanceY", 4, 3, -1, 1, 12.573))
pad14 = doc.addObject("PartDesign::Pad", "Pad013")
body14.addObject(pad14)
pad14.Profile = sketch14
pad14.Length = 7
body15 = doc.addObject("PartDesign::Body", "Body014")
doc.recompute()

body14.Placement = App.Placement(Vector(0, 0, 20), App.Rotation(Vector(0, 0, 1), 0))
boolean13 = doc.addObject("PartDesign::Boolean", "Boolean012")
body15.addObject(boolean13)
boolean13.Type = "Fuse"
boolean13.addObjects([body14])
body16 = doc.addObject("PartDesign::Body", "Body015")
body16.AllowCompound = True

sketch15 = doc.addObject("Sketcher::SketchObject", "Sketch014")
body16.addObject(sketch15)
sketch15.AttachmentSupport = (doc.getObject("XY_Plane015"), [""])
sketch15.MapMode = "FlatFace"
sketch15.AttachmentOffset = App.Placement(Vector(0, 0, 20), App.Rotation())
add_polygon(sketch15, [(-25, 20), (-25, -20), (25, -20), (25, 20)])
sketch15.addConstraint(Sketcher.Constraint("Vertical", 0))
sketch15.addConstraint(Sketcher.Constraint("Horizontal", 1))
sketch15.addConstraint(Sketcher.Constraint("Vertical", 2))
sketch15.addConstraint(Sketcher.Constraint("Horizontal", 3))
sketch15.addConstraint(Sketcher.Constraint("Symmetric", 0, 2, 2, 2, -1, 1))
sketch15.addConstraint(Sketcher.Constraint("DistanceX", 1, 1, 1, 2, 50.0))
sketch15.addConstraint(Sketcher.Constraint("DistanceY", 0, 2, 0, 1, 40.0))
pad15 = doc.addObject("PartDesign::Pad", "Pad014")
body16.addObject(pad15)
pad15.Profile = sketch15
pad15.Length = 7
doc.recompute()

boolean14 = doc.addObject("PartDesign::Boolean", "Boolean013")
body16.addObject(boolean14)
boolean14.Type = "Cut"
boolean14.addObjects([body15])
body17 = doc.addObject("PartDesign::Body", "Body016")

sketch16 = doc.addObject("Sketcher::SketchObject", "Sketch015")
body17.addObject(sketch16)
sketch16.AttachmentSupport = (doc.getObject("XY_Plane016"), [""])
sketch16.MapMode = "FlatFace"
add_polygon(sketch16, [(-25, 20), (-25, -20), (25, -20), (25, 20)])
sketch16.addGeometry(Part.Circle(Vector(-18.2, -12.6, 0), Vector(0, 0, 1), 1.2), False)
sketch16.addGeometry(Part.Circle(Vector(18.2, -12.6, 0), Vector(0, 0, 1), 1.2), False)
sketch16.addGeometry(Part.Circle(Vector(-18.2, 12.6, 0), Vector(0, 0, 1), 1.2), False)
sketch16.addGeometry(Part.Circle(Vector(18.2, 12.6, 0), Vector(0, 0, 1), 1.2), False)
sketch16.addConstraint(Sketcher.Constraint("Vertical", 0))
sketch16.addConstraint(Sketcher.Constraint("Horizontal", 1))
sketch16.addConstraint(Sketcher.Constraint("Vertical", 2))
sketch16.addConstraint(Sketcher.Constraint("Horizontal", 3))
sketch16.addConstraint(Sketcher.Constraint("Equal", 4, 5))
sketch16.addConstraint(Sketcher.Constraint("Equal", 5, 6))
sketch16.addConstraint(Sketcher.Constraint("Equal", 6, 7))
sketch16.addConstraint(Sketcher.Constraint("Symmetric", 5, 3, 6, 3, -1, 1))
sketch16.addConstraint(Sketcher.Constraint("Symmetric", 4, 3, 7, 3, -1, 1))
sketch16.addConstraint(Sketcher.Constraint("Symmetric", 0, 2, 2, 2, -1, 1))
sketch16.addConstraint(Sketcher.Constraint("Symmetric", 4, 3, 5, 3, -2))
sketch16.addConstraint(Sketcher.Constraint("Diameter", 4, 2.5))
sketch16.addConstraint(Sketcher.Constraint("DistanceX", 1, 1, 1, 2, 50.0))
sketch16.addConstraint(Sketcher.Constraint("DistanceY", 0, 2, 0, 1, 40.0))
sketch16.addConstraint(Sketcher.Constraint("DistanceX", 4, 3, -1, 1, 18.16))
sketch16.addConstraint(Sketcher.Constraint("DistanceY", 4, 3, -1, 1, 12.573))
pad16 = doc.addObject("PartDesign::Pad", "Pad015")
body17.addObject(pad16)
pad16.Profile = sketch16
pad16.Length = 10
body18 = doc.addObject("PartDesign::Body", "Body017")
doc.recompute()

body17.Placement = App.Placement(Vector(0, 0, 20), App.Rotation(Vector(0, 0, 1), 0))
boolean15 = doc.addObject("PartDesign::Boolean", "Boolean014")
body18.addObject(boolean15)
boolean15.Type = "Fuse"
boolean15.addObjects([body17])
body19 = doc.addObject("PartDesign::Body", "Body018")
body19.AllowCompound = True

sketch17 = doc.addObject("Sketcher::SketchObject", "Sketch016")
body19.addObject(sketch17)
sketch17.AttachmentSupport = (doc.getObject("XY_Plane018"), [""])
sketch17.MapMode = "FlatFace"
sketch17.AttachmentOffset = App.Placement(Vector(0, 0, 20), App.Rotation())
add_polygon(sketch17, [(-25, 20), (-25, -20), (25, -20), (25, 20)])
sketch17.addConstraint(Sketcher.Constraint("Vertical", 0))
sketch17.addConstraint(Sketcher.Constraint("Horizontal", 1))
sketch17.addConstraint(Sketcher.Constraint("Vertical", 2))
sketch17.addConstraint(Sketcher.Constraint("Horizontal", 3))
sketch17.addConstraint(Sketcher.Constraint("Symmetric", 0, 2, 2, 2, -1, 1))
sketch17.addConstraint(Sketcher.Constraint("DistanceX", 1, 1, 1, 2, 50.0))
sketch17.addConstraint(Sketcher.Constraint("DistanceY", 0, 2, 0, 1, 40.0))
pad17 = doc.addObject("PartDesign::Pad", "Pad016")
body19.addObject(pad17)
pad17.Profile = sketch17
pad17.Length = 10
doc.recompute()

boolean16 = doc.addObject("PartDesign::Boolean", "Boolean015")
body19.addObject(boolean16)
boolean16.Type = "Cut"
boolean16.addObjects([body18])
doc.recompute()

boolean17 = doc.addObject("PartDesign::Boolean", "Boolean016")
body19.addObject(boolean17)
boolean17.Type = "Fuse"
boolean17.addObjects([body13])
doc.recompute()

boolean18 = doc.addObject("PartDesign::Boolean", "Boolean017")
body19.addObject(boolean18)
boolean18.Type = "Fuse"
boolean18.addObjects([body16])

doc.recompute()
